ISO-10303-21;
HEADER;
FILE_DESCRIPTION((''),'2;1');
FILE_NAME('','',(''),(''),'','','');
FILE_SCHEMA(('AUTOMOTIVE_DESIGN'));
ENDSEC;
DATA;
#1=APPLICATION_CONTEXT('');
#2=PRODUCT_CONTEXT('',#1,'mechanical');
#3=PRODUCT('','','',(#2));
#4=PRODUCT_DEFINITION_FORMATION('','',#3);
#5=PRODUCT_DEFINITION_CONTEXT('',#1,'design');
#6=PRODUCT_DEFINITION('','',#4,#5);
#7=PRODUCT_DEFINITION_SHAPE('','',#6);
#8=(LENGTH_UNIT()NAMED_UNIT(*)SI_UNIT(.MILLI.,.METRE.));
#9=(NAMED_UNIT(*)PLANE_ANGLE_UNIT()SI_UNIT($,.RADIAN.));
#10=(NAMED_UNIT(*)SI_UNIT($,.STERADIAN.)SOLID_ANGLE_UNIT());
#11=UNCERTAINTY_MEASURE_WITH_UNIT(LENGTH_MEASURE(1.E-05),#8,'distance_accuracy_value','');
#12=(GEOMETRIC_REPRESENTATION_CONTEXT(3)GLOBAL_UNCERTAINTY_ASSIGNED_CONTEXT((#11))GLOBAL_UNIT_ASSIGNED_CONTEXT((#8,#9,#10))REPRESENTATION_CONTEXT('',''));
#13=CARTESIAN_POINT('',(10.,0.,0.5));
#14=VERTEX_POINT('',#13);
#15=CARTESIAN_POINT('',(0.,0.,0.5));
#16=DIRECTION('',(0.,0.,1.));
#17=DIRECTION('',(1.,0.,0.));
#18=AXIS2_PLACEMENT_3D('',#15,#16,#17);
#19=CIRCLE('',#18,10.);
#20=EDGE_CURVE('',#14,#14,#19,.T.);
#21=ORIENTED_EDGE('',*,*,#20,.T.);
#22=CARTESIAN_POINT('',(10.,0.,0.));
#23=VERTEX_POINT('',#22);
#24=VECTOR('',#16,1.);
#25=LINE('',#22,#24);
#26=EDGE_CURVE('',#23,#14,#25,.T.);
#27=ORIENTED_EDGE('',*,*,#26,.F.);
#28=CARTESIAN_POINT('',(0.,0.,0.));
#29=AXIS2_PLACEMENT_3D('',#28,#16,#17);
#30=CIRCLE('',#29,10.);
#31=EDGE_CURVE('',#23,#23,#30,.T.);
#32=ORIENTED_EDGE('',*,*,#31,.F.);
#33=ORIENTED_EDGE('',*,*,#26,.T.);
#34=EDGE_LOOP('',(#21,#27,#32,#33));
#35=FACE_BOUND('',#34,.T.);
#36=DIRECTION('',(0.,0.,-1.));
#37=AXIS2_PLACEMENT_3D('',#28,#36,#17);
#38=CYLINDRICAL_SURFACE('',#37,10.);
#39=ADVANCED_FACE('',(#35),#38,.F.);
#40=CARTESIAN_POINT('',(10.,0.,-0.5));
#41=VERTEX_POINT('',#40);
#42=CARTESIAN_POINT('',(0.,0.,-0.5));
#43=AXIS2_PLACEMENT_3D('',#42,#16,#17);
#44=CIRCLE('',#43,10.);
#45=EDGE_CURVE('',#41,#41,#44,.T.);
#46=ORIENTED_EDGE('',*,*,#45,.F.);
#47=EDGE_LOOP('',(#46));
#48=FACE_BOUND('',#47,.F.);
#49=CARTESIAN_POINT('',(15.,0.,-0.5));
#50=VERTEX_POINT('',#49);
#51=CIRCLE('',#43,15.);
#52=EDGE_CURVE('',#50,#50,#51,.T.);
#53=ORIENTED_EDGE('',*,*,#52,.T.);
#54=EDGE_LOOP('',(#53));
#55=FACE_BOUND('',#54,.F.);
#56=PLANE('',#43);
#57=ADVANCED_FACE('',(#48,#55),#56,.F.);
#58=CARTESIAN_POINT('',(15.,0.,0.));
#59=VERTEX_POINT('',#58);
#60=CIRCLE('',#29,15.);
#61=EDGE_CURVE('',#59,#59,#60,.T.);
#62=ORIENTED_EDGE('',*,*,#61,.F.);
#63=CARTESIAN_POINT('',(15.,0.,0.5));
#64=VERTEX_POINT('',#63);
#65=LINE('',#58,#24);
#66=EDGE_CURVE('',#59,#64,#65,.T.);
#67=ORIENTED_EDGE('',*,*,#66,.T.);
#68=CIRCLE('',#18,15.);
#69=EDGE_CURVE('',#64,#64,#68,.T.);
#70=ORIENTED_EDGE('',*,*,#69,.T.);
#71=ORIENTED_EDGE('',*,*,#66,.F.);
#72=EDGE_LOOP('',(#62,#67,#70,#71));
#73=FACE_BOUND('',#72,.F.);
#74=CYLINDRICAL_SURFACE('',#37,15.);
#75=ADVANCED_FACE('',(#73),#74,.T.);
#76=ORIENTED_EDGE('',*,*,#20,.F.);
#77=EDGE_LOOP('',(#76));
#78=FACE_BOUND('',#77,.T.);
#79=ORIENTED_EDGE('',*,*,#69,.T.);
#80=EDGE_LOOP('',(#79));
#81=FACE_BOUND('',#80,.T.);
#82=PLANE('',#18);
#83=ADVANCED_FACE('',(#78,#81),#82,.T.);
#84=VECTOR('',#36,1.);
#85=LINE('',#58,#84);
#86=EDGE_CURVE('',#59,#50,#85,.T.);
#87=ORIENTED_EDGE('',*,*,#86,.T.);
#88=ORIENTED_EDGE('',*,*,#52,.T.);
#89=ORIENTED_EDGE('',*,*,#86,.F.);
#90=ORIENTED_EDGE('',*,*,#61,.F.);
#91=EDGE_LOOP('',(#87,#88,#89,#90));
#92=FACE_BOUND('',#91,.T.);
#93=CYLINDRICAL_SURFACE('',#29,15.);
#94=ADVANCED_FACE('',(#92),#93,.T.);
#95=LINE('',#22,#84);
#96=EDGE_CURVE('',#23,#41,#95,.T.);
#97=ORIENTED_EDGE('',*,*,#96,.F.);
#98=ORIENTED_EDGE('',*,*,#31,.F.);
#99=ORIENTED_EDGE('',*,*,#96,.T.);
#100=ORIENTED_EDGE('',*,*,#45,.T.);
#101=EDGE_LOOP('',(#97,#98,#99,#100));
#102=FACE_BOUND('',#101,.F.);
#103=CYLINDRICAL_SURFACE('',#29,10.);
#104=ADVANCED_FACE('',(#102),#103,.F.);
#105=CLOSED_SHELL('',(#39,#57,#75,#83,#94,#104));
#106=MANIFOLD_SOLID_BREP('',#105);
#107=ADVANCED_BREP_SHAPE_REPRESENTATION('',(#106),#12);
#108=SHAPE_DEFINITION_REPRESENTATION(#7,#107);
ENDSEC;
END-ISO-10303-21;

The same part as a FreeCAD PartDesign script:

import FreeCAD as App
import Part
import Sketcher

doc = App.newDocument("Part")
body = doc.addObject("PartDesign::Body", "Body")

# Sketch on XY plane
sketch1 = doc.addObject("Sketcher::SketchObject", "Sketch")
body.addObject(sketch1)
sketch1.AttachmentSupport = (doc.XY_Plane, [""])
sketch1.MapMode = "FlatFace"
sketch1.addGeometry([
    Part.Circle(App.Vector(0, 0, 0), App.Vector(0, 0, 1), 15),
    Part.Circle(App.Vector(0, 0, 0), App.Vector(0, 0, 1), 10),
], False)
sketch1.addConstraint([
    Sketcher.Constraint("Coincident", 0, 3, -1, 1),
    Sketcher.Constraint("Coincident", 1, 3, -1, 1),
    Sketcher.Constraint("Diameter", 0, 30.0),
    Sketcher.Constraint("Diameter", 1, 20.0),
])
pad1 = doc.addObject("PartDesign::Pad", "Pad")
body.addObject(pad1)
pad1.Profile = sketch1
pad1.Length = 1
pad1.Midplane = True

doc.recompute()
